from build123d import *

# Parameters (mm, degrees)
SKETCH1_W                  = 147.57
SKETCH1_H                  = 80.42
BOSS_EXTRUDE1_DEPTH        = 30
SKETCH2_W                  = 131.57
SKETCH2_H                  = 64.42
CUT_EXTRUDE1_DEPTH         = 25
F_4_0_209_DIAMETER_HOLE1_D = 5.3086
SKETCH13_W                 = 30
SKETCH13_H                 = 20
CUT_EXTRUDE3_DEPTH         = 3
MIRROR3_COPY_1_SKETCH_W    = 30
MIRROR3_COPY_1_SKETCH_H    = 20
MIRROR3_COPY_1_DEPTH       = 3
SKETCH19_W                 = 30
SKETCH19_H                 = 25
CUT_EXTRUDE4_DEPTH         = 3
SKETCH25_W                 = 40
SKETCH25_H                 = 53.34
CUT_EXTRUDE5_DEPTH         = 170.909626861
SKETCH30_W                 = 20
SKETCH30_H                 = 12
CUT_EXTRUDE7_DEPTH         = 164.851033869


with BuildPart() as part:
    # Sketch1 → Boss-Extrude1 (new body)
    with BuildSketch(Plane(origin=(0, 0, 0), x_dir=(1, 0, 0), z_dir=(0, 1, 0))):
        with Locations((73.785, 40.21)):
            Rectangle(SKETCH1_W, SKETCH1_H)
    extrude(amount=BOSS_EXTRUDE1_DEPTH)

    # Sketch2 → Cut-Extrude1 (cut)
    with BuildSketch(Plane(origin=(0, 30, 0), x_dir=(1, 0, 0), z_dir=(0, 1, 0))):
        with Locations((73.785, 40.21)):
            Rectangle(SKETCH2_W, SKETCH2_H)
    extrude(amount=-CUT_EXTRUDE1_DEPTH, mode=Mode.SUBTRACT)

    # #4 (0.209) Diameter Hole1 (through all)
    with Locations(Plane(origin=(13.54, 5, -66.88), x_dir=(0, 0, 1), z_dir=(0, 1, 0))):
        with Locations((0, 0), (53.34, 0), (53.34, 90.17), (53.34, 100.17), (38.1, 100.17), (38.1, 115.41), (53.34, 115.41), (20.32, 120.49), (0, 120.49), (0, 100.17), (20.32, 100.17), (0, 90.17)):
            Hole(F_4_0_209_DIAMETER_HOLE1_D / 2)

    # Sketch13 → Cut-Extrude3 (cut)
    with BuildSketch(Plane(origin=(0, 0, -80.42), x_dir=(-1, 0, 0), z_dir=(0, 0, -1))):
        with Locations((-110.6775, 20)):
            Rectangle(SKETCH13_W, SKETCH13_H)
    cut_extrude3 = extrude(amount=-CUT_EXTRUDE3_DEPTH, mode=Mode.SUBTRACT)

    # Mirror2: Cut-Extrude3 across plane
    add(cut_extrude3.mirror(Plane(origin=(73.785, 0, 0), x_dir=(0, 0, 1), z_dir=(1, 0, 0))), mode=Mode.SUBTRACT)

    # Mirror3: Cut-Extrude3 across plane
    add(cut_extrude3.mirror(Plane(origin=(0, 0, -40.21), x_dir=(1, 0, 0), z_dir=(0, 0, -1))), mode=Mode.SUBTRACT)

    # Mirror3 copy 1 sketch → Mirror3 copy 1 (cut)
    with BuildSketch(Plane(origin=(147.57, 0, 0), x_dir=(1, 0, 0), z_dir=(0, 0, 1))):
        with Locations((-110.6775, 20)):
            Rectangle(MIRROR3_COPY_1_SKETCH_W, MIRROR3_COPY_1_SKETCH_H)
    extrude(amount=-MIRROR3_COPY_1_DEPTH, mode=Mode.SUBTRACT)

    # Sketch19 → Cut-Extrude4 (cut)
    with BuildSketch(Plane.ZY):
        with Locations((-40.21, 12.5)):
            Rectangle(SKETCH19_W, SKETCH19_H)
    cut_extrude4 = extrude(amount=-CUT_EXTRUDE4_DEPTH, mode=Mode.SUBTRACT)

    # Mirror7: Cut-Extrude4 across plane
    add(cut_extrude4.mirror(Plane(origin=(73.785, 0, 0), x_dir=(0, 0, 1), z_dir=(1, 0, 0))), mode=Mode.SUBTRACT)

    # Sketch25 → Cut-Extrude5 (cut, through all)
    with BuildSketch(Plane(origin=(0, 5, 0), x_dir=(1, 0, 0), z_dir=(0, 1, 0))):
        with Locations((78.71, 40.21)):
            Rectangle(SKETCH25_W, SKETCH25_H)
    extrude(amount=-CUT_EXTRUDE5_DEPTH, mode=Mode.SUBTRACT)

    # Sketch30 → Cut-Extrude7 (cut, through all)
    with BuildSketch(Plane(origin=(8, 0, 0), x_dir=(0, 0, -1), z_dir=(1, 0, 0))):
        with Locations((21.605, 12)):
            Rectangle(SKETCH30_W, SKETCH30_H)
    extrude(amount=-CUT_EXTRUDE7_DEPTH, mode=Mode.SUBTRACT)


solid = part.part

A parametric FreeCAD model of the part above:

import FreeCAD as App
import Part
import Sketcher

V = App.Vector


def add_polygon(sketch, points):
    """Adds a closed chain of lines whose ends are joined by coincident constraints."""
    first, n = sketch.GeometryCount, len(points)
    for a, b in zip(points, points[1:] + points[:1]):
        sketch.addGeometry(Part.LineSegment(App.Vector(*a, 0), App.Vector(*b, 0)), False)
    for i in range(n):
        sketch.addConstraint(Sketcher.Constraint("Coincident", first + i, 2, first + (i + 1) % n, 1))

doc = App.newDocument("Part")
params = doc.addObject("Spreadsheet::Sheet", "Params")
for row, (alias, value) in enumerate([
    ("sketch1_width", "147.57 mm"),
    ("sketch1_height", "80.42 mm"),
    ("pad1_length", "30 mm"),
    ("sketch2_width", "131.57 mm"),
    ("sketch2_height", "64.42 mm"),
    ("pocket1_length", "25 mm"),
    ("hole_diameter", "5.3086 mm"),
    ("sketch4_width", "30 mm"),
    ("sketch4_height", "20 mm"),
    ("pocket2_length", "3 mm"),
    ("sketch5_width", "30 mm"),
    ("sketch5_height", "20 mm"),
    ("pocket3_length", "3 mm"),
    ("sketch6_width", "25 mm"),
    ("sketch6_height", "30 mm"),
    ("pocket4_length", "3 mm"),
    ("sketch7_width", "40 mm"),
    ("sketch7_height", "53.34 mm"),
    ("sketch8_width", "12 mm"),
    ("sketch8_height", "20 mm"),
], start=1):
    params.set(f"A{row}", alias)
    params.set(f"B{row}", "=" + value)
    params.setAlias(f"B{row}", alias)

body = doc.addObject("PartDesign::Body", "Body")

# Sketch on XZ plane
sketch1 = doc.addObject("Sketcher::SketchObject", "Sketch")
body.addObject(sketch1)
sketch1.AttachmentSupport = (doc.XZ_Plane, [""])
sketch1.MapMode = "FlatFace"
add_polygon(sketch1, [(0, -80), (0, 0), (148, 0), (148, -80)])  # lines 0-3
sketch1.addConstraint([
    Sketcher.Constraint("Vertical", 0),
    Sketcher.Constraint("Horizontal", 1),
    Sketcher.Constraint("Vertical", 2),
    Sketcher.Constraint("Horizontal", 3),
    Sketcher.Constraint("Coincident", 0, 2, -1, 1),
    Sketcher.Constraint("DistanceX", 1, 1, 1, 2, 147.57),
    Sketcher.Constraint("DistanceY", 0, 1, 0, 2, 80.42),
])
sketch1.setExpression("Constraints[9]", "Params.sketch1_width")
sketch1.setExpression("Constraints[10]", "Params.sketch1_height")
pad1 = doc.addObject("PartDesign::Pad", "Pad")
body.addObject(pad1)
pad1.Profile = sketch1
pad1.setExpression("Length", "Params.pad1_length")
pad1.Reversed = True

# Sketch on XZ plane
sketch2 = doc.addObject("Sketcher::SketchObject", "Sketch001")
body.addObject(sketch2)
sketch2.AttachmentSupport = (doc.XZ_Plane, [""])
sketch2.MapMode = "FlatFace"
sketch2.AttachmentOffset = App.Placement(V(0, 0, -30), App.Rotation())
add_polygon(sketch2, [(8, -72), (8, -8), (140, -8), (140, -72)])  # lines 0-3
sketch2.addConstraint([
    Sketcher.Constraint("Vertical", 0),
    Sketcher.Constraint("Horizontal", 1),
    Sketcher.Constraint("Vertical", 2),
    Sketcher.Constraint("Horizontal", 3),
    Sketcher.Constraint("DistanceX", -1, 1, 0, 2, 8.0),
    Sketcher.Constraint("DistanceY", 0, 2, -1, 1, 8.0),
    Sketcher.Constraint("DistanceX", 1, 1, 1, 2, 131.57),
    Sketcher.Constraint("DistanceY", 0, 1, 0, 2, 64.42),
])
sketch2.setExpression("Constraints[10]", "Params.sketch2_width")
sketch2.setExpression("Constraints[11]", "Params.sketch2_height")
pocket1 = doc.addObject("PartDesign::Pocket", "Pocket")
body.addObject(pocket1)
pocket1.Profile = sketch2
pocket1.setExpression("Length", "Params.pocket1_length")
pocket1.Reversed = True

# Sketch on XZ plane
sketch3 = doc.addObject("Sketcher::SketchObject", "Sketch002")
body.addObject(sketch3)
sketch3.AttachmentSupport = (doc.XZ_Plane, [""])
sketch3.MapMode = "FlatFace"
sketch3.AttachmentOffset = App.Placement(V(0, 0, -5), App.Rotation())
sketch3.addGeometry([
    Part.Circle(V(13.5, -66.9, 0), V(0, 0, 1), 2.7),  # 0
    Part.Circle(V(13.5, -13.5, 0), V(0, 0, 1), 2.7),  # 1
    Part.Circle(V(103.7, -13.5, 0), V(0, 0, 1), 2.7),  # 2
    Part.Circle(V(113.7, -13.5, 0), V(0, 0, 1), 2.7),  # 3
    Part.Circle(V(113.7, -28.8, 0), V(0, 0, 1), 2.7),  # 4
    Part.Circle(V(128.9, -28.8, 0), V(0, 0, 1), 2.7),  # 5
    Part.Circle(V(128.9, -13.5, 0), V(0, 0, 1), 2.7),  # 6
    Part.Circle(V(134, -46.6, 0), V(0, 0, 1), 2.7),  # 7
    Part.Circle(V(134, -66.9, 0), V(0, 0, 1), 2.7),  # 8
    Part.Circle(V(113.7, -66.9, 0), V(0, 0, 1), 2.7),  # 9
    Part.Circle(V(113.7, -46.6, 0), V(0, 0, 1), 2.7),  # 10
    Part.Circle(V(103.7, -66.9, 0), V(0, 0, 1), 2.7),  # 11
], False)
sketch3.addConstraint([
    Sketcher.Constraint("Equal", 0, 1),
    Sketcher.Constraint("Equal", 1, 2),
    Sketcher.Constraint("Equal", 2, 3),
    Sketcher.Constraint("Equal", 3, 4),
    Sketcher.Constraint("Equal", 4, 5),
    Sketcher.Constraint("Equal", 5, 6),
    Sketcher.Constraint("Equal", 6, 7),
    Sketcher.Constraint("Equal", 7, 8),
    Sketcher.Constraint("Equal", 8, 9),
    Sketcher.Constraint("Equal", 9, 10),
    Sketcher.Constraint("Equal", 10, 11),
    Sketcher.Constraint("Horizontal", 1, 3, 2, 3),
    Sketcher.Constraint("Horizontal", 2, 3, 3, 3),
    Sketcher.Constraint("Horizontal", 4, 3, 5, 3),
    Sketcher.Constraint("Horizontal", 3, 3, 6, 3),
    Sketcher.Constraint("Horizontal", 0, 3, 8, 3),
    Sketcher.Constraint("Horizontal", 8, 3, 9, 3),
    Sketcher.Constraint("Horizontal", 7, 3, 10, 3),
    Sketcher.Constraint("Horizontal", 9, 3, 11, 3),
    Sketcher.Constraint("Vertical", 0, 3, 1, 3),
    Sketcher.Constraint("Vertical", 3, 3, 4, 3),
    Sketcher.Constraint("Vertical", 5, 3, 6, 3),
    Sketcher.Constraint("Vertical", 7, 3, 8, 3),
    Sketcher.Constraint("Vertical", 4, 3, 9, 3),
    Sketcher.Constraint("Vertical", 9, 3, 10, 3),
    Sketcher.Constraint("Vertical", 2, 3, 11, 3),
    Sketcher.Constraint("DistanceX", 2, 3, 3, 3, 10.0),
    Sketcher.Constraint("Diameter", 0, 5.3086),
    Sketcher.Constraint("DistanceY", 0, 3, 4, 3, 38.1),
    Sketcher.Constraint("DistanceX", -1, 1, 0, 3, 13.54),
    Sketcher.Constraint("DistanceY", 0, 3, -1, 1, 66.88),
    Sketcher.Constraint("DistanceY", 1, 3, -1, 1, 13.54),
    Sketcher.Constraint("DistanceX", -1, 1, 2, 3, 103.71),
    Sketcher.Constraint("DistanceX", -1, 1, 5, 3, 128.95),
    Sketcher.Constraint("DistanceX", -1, 1, 7, 3, 134.03),
    Sketcher.Constraint("DistanceY", 7, 3, -1, 1, 46.56),
])
doc.recompute()
hole = doc.addObject("PartDesign::Hole", "Hole")
body.addObject(hole)
hole.Profile = sketch3
hole.ThreadType = "None"
hole.setExpression("Diameter", "Params.hole_diameter")
hole.DepthType = "ThroughAll"
hole.Reversed = True

# Sketch on XY plane
sketch4 = doc.addObject("Sketcher::SketchObject", "Sketch003")
body.addObject(sketch4)
sketch4.AttachmentSupport = (doc.XY_Plane, [""])
sketch4.MapMode = "FlatFace"
sketch4.AttachmentOffset = App.Placement(V(0, 0, -80.42), App.Rotation())
add_polygon(sketch4, [(126, 30), (126, 10), (96, 10), (96, 30)])  # lines 0-3
sketch4.addConstraint([
    Sketcher.Constraint("Vertical", 0),
    Sketcher.Constraint("Horizontal", 1),
    Sketcher.Constraint("Vertical", 2),
    Sketcher.Constraint("Horizontal", 3),
    Sketcher.Constraint("DistanceX", 1, 2, 1, 1, 30.0),
    Sketcher.Constraint("DistanceY", 0, 2, 0, 1, 20.0),
    Sketcher.Constraint("DistanceY", -1, 1, 0, 2, 10.0),
    Sketcher.Constraint("DistanceX", -1, 1, 0, 2, 125.6775),
])
sketch4.setExpression("Constraints[8]", "Params.sketch4_width")
sketch4.setExpression("Constraints[9]", "Params.sketch4_height")
pocket2 = doc.addObject("PartDesign::Pocket", "Pocket001")
body.addObject(pocket2)
pocket2.Profile = sketch4
pocket2.setExpression("Length", "Params.pocket2_length")
pocket2.Reversed = True
doc.recompute()

datumplane = doc.addObject("PartDesign::Plane", "DatumPlane")
body.addObject(datumplane)
datumplane.AttachmentSupport = (doc.YZ_Plane, [""])
datumplane.MapMode = "FlatFace"
datumplane.AttachmentOffset = App.Placement(V(0, 0, 73.785), App.Rotation())
mirrored = doc.addObject("PartDesign::Mirrored", "Mirrored")
body.addObject(mirrored)
mirrored.Originals = [pocket2]
mirrored.MirrorPlane = (datumplane, [""])
body.Tip = mirrored
doc.recompute()

datumplane2 = doc.addObject("PartDesign::Plane", "DatumPlane001")
body.addObject(datumplane2)
datumplane2.AttachmentSupport = (doc.XY_Plane, [""])
datumplane2.MapMode = "FlatFace"
datumplane2.AttachmentOffset = App.Placement(V(0, 0, -40.21), App.Rotation())
mirrored2 = doc.addObject("PartDesign::Mirrored", "Mirrored001")
body.addObject(mirrored2)
mirrored2.Originals = [pocket2]
mirrored2.MirrorPlane = (datumplane2, [""])
body.Tip = mirrored2

# Sketch on XY plane
sketch5 = doc.addObject("Sketcher::SketchObject", "Sketch004")
body.addObject(sketch5)
sketch5.AttachmentSupport = (doc.XY_Plane, [""])
sketch5.MapMode = "FlatFace"
add_polygon(sketch5, [(22, 30), (22, 10), (52, 10), (52, 30)])  # lines 0-3
sketch5.addConstraint([
    Sketcher.Constraint("Vertical", 0),
    Sketcher.Constraint("Horizontal", 1),
    Sketcher.Constraint("Vertical", 2),
    Sketcher.Constraint("Horizontal", 3),
    Sketcher.Constraint("DistanceX", 1, 1, 1, 2, 30.0),
    Sketcher.Constraint("DistanceY", 0, 2, 0, 1, 20.0),
    Sketcher.Constraint("DistanceY", -1, 1, 0, 2, 10.0),
    Sketcher.Constraint("DistanceX", -1, 1, 0, 2, 21.8925),
])
sketch5.setExpression("Constraints[8]", "Params.sketch5_width")
sketch5.setExpression("Constraints[9]", "Params.sketch5_height")
pocket3 = doc.addObject("PartDesign::Pocket", "Pocket002")
body.addObject(pocket3)
pocket3.Profile = sketch5
pocket3.setExpression("Length", "Params.pocket3_length")

# Sketch on YZ plane
sketch6 = doc.addObject("Sketcher::SketchObject", "Sketch005")
body.addObject(sketch6)
sketch6.AttachmentSupport = (doc.YZ_Plane, [""])
sketch6.MapMode = "FlatFace"
add_polygon(sketch6, [(25, -55), (0, -55), (0, -25), (25, -25)])  # lines 0-3
sketch6.addConstraint([
    Sketcher.Constraint("Horizontal", 0),
    Sketcher.Constraint("Vertical", 1),
    Sketcher.Constraint("Horizontal", 2),
    Sketcher.Constraint("Vertical", 3),
    Sketcher.Constraint("PointOnObject", 0, 2, -2),
    Sketcher.Constraint("DistanceX", 0, 2, 0, 1, 25.0),
    Sketcher.Constraint("DistanceY", 1, 1, 1, 2, 30.0),
    Sketcher.Constraint("DistanceY", 0, 2, -1, 1, 55.21),
])
sketch6.setExpression("Constraints[9]", "Params.sketch6_width")
sketch6.setExpression("Constraints[10]", "Params.sketch6_height")
pocket4 = doc.addObject("PartDesign::Pocket", "Pocket003")
body.addObject(pocket4)
pocket4.Profile = sketch6
pocket4.setExpression("Length", "Params.pocket4_length")
pocket4.Reversed = True
doc.recompute()

datumplane3 = doc.addObject("PartDesign::Plane", "DatumPlane002")
body.addObject(datumplane3)
datumplane3.AttachmentSupport = (doc.YZ_Plane, [""])
datumplane3.MapMode = "FlatFace"
datumplane3.AttachmentOffset = App.Placement(V(0, 0, 73.785), App.Rotation())
mirrored3 = doc.addObject("PartDesign::Mirrored", "Mirrored002")
body.addObject(mirrored3)
mirrored3.Originals = [pocket4]
mirrored3.MirrorPlane = (datumplane3, [""])
body.Tip = mirrored3

# Sketch on XZ plane
sketch7 = doc.addObject("Sketcher::SketchObject", "Sketch006")
body.addObject(sketch7)
sketch7.AttachmentSupport = (doc.XZ_Plane, [""])
sketch7.MapMode = "FlatFace"
sketch7.AttachmentOffset = App.Placement(V(0, 0, -5), App.Rotation())
add_polygon(sketch7, [(59, -67), (59, -14), (99, -14), (99, -67)])  # lines 0-3
sketch7.addConstraint([
    Sketcher.Constraint("Vertical", 0),
    Sketcher.Constraint("Horizontal", 1),
    Sketcher.Constraint("Vertical", 2),
    Sketcher.Constraint("Horizontal", 3),
    Sketcher.Constraint("DistanceX", 1, 1, 1, 2, 40.0),
    Sketcher.Constraint("DistanceY", 0, 1, 0, 2, 53.34),
    Sketcher.Constraint("DistanceX", -1, 1, 0, 2, 58.71),
    Sketcher.Constraint("DistanceY", 0, 2, -1, 1, 13.54),
])
sketch7.setExpression("Constraints[8]", "Params.sketch7_width")
sketch7.setExpression("Constraints[9]", "Params.sketch7_height")
pocket5 = doc.addObject("PartDesign::Pocket", "Pocket004")
body.addObject(pocket5)
pocket5.Profile = sketch7
pocket5.Type = "ThroughAll"
pocket5.Reversed = True

# Sketch on YZ plane
sketch8 = doc.addObject("Sketcher::SketchObject", "Sketch007")
body.addObject(sketch8)
sketch8.AttachmentSupport = (doc.YZ_Plane, [""])
sketch8.MapMode = "FlatFace"
sketch8.AttachmentOffset = App.Placement(V(0, 0, 8), App.Rotation())
add_polygon(sketch8, [(18, -12), (6, -12), (6, -32), (18, -32)])  # lines 0-3
sketch8.addConstraint([
    Sketcher.Constraint("Horizontal", 0),
    Sketcher.Constraint("Vertical", 1),
    Sketcher.Constraint("Horizontal", 2),
    Sketcher.Constraint("Vertical", 3),
    Sketcher.Constraint("DistanceX", 0, 2, 0, 1, 12.0),
    Sketcher.Constraint("DistanceY", 1, 2, 1, 1, 20.0),
    Sketcher.Constraint("DistanceX", -1, 1, 0, 2, 6.0),
    Sketcher.Constraint("DistanceY", 0, 2, -1, 1, 11.605),
])
sketch8.setExpression("Constraints[8]", "Params.sketch8_width")
sketch8.setExpression("Constraints[9]", "Params.sketch8_height")
pocket6 = doc.addObject("PartDesign::Pocket", "Pocket005")
body.addObject(pocket6)
pocket6.Profile = sketch8
pocket6.Type = "ThroughAll"

doc.recompute()
